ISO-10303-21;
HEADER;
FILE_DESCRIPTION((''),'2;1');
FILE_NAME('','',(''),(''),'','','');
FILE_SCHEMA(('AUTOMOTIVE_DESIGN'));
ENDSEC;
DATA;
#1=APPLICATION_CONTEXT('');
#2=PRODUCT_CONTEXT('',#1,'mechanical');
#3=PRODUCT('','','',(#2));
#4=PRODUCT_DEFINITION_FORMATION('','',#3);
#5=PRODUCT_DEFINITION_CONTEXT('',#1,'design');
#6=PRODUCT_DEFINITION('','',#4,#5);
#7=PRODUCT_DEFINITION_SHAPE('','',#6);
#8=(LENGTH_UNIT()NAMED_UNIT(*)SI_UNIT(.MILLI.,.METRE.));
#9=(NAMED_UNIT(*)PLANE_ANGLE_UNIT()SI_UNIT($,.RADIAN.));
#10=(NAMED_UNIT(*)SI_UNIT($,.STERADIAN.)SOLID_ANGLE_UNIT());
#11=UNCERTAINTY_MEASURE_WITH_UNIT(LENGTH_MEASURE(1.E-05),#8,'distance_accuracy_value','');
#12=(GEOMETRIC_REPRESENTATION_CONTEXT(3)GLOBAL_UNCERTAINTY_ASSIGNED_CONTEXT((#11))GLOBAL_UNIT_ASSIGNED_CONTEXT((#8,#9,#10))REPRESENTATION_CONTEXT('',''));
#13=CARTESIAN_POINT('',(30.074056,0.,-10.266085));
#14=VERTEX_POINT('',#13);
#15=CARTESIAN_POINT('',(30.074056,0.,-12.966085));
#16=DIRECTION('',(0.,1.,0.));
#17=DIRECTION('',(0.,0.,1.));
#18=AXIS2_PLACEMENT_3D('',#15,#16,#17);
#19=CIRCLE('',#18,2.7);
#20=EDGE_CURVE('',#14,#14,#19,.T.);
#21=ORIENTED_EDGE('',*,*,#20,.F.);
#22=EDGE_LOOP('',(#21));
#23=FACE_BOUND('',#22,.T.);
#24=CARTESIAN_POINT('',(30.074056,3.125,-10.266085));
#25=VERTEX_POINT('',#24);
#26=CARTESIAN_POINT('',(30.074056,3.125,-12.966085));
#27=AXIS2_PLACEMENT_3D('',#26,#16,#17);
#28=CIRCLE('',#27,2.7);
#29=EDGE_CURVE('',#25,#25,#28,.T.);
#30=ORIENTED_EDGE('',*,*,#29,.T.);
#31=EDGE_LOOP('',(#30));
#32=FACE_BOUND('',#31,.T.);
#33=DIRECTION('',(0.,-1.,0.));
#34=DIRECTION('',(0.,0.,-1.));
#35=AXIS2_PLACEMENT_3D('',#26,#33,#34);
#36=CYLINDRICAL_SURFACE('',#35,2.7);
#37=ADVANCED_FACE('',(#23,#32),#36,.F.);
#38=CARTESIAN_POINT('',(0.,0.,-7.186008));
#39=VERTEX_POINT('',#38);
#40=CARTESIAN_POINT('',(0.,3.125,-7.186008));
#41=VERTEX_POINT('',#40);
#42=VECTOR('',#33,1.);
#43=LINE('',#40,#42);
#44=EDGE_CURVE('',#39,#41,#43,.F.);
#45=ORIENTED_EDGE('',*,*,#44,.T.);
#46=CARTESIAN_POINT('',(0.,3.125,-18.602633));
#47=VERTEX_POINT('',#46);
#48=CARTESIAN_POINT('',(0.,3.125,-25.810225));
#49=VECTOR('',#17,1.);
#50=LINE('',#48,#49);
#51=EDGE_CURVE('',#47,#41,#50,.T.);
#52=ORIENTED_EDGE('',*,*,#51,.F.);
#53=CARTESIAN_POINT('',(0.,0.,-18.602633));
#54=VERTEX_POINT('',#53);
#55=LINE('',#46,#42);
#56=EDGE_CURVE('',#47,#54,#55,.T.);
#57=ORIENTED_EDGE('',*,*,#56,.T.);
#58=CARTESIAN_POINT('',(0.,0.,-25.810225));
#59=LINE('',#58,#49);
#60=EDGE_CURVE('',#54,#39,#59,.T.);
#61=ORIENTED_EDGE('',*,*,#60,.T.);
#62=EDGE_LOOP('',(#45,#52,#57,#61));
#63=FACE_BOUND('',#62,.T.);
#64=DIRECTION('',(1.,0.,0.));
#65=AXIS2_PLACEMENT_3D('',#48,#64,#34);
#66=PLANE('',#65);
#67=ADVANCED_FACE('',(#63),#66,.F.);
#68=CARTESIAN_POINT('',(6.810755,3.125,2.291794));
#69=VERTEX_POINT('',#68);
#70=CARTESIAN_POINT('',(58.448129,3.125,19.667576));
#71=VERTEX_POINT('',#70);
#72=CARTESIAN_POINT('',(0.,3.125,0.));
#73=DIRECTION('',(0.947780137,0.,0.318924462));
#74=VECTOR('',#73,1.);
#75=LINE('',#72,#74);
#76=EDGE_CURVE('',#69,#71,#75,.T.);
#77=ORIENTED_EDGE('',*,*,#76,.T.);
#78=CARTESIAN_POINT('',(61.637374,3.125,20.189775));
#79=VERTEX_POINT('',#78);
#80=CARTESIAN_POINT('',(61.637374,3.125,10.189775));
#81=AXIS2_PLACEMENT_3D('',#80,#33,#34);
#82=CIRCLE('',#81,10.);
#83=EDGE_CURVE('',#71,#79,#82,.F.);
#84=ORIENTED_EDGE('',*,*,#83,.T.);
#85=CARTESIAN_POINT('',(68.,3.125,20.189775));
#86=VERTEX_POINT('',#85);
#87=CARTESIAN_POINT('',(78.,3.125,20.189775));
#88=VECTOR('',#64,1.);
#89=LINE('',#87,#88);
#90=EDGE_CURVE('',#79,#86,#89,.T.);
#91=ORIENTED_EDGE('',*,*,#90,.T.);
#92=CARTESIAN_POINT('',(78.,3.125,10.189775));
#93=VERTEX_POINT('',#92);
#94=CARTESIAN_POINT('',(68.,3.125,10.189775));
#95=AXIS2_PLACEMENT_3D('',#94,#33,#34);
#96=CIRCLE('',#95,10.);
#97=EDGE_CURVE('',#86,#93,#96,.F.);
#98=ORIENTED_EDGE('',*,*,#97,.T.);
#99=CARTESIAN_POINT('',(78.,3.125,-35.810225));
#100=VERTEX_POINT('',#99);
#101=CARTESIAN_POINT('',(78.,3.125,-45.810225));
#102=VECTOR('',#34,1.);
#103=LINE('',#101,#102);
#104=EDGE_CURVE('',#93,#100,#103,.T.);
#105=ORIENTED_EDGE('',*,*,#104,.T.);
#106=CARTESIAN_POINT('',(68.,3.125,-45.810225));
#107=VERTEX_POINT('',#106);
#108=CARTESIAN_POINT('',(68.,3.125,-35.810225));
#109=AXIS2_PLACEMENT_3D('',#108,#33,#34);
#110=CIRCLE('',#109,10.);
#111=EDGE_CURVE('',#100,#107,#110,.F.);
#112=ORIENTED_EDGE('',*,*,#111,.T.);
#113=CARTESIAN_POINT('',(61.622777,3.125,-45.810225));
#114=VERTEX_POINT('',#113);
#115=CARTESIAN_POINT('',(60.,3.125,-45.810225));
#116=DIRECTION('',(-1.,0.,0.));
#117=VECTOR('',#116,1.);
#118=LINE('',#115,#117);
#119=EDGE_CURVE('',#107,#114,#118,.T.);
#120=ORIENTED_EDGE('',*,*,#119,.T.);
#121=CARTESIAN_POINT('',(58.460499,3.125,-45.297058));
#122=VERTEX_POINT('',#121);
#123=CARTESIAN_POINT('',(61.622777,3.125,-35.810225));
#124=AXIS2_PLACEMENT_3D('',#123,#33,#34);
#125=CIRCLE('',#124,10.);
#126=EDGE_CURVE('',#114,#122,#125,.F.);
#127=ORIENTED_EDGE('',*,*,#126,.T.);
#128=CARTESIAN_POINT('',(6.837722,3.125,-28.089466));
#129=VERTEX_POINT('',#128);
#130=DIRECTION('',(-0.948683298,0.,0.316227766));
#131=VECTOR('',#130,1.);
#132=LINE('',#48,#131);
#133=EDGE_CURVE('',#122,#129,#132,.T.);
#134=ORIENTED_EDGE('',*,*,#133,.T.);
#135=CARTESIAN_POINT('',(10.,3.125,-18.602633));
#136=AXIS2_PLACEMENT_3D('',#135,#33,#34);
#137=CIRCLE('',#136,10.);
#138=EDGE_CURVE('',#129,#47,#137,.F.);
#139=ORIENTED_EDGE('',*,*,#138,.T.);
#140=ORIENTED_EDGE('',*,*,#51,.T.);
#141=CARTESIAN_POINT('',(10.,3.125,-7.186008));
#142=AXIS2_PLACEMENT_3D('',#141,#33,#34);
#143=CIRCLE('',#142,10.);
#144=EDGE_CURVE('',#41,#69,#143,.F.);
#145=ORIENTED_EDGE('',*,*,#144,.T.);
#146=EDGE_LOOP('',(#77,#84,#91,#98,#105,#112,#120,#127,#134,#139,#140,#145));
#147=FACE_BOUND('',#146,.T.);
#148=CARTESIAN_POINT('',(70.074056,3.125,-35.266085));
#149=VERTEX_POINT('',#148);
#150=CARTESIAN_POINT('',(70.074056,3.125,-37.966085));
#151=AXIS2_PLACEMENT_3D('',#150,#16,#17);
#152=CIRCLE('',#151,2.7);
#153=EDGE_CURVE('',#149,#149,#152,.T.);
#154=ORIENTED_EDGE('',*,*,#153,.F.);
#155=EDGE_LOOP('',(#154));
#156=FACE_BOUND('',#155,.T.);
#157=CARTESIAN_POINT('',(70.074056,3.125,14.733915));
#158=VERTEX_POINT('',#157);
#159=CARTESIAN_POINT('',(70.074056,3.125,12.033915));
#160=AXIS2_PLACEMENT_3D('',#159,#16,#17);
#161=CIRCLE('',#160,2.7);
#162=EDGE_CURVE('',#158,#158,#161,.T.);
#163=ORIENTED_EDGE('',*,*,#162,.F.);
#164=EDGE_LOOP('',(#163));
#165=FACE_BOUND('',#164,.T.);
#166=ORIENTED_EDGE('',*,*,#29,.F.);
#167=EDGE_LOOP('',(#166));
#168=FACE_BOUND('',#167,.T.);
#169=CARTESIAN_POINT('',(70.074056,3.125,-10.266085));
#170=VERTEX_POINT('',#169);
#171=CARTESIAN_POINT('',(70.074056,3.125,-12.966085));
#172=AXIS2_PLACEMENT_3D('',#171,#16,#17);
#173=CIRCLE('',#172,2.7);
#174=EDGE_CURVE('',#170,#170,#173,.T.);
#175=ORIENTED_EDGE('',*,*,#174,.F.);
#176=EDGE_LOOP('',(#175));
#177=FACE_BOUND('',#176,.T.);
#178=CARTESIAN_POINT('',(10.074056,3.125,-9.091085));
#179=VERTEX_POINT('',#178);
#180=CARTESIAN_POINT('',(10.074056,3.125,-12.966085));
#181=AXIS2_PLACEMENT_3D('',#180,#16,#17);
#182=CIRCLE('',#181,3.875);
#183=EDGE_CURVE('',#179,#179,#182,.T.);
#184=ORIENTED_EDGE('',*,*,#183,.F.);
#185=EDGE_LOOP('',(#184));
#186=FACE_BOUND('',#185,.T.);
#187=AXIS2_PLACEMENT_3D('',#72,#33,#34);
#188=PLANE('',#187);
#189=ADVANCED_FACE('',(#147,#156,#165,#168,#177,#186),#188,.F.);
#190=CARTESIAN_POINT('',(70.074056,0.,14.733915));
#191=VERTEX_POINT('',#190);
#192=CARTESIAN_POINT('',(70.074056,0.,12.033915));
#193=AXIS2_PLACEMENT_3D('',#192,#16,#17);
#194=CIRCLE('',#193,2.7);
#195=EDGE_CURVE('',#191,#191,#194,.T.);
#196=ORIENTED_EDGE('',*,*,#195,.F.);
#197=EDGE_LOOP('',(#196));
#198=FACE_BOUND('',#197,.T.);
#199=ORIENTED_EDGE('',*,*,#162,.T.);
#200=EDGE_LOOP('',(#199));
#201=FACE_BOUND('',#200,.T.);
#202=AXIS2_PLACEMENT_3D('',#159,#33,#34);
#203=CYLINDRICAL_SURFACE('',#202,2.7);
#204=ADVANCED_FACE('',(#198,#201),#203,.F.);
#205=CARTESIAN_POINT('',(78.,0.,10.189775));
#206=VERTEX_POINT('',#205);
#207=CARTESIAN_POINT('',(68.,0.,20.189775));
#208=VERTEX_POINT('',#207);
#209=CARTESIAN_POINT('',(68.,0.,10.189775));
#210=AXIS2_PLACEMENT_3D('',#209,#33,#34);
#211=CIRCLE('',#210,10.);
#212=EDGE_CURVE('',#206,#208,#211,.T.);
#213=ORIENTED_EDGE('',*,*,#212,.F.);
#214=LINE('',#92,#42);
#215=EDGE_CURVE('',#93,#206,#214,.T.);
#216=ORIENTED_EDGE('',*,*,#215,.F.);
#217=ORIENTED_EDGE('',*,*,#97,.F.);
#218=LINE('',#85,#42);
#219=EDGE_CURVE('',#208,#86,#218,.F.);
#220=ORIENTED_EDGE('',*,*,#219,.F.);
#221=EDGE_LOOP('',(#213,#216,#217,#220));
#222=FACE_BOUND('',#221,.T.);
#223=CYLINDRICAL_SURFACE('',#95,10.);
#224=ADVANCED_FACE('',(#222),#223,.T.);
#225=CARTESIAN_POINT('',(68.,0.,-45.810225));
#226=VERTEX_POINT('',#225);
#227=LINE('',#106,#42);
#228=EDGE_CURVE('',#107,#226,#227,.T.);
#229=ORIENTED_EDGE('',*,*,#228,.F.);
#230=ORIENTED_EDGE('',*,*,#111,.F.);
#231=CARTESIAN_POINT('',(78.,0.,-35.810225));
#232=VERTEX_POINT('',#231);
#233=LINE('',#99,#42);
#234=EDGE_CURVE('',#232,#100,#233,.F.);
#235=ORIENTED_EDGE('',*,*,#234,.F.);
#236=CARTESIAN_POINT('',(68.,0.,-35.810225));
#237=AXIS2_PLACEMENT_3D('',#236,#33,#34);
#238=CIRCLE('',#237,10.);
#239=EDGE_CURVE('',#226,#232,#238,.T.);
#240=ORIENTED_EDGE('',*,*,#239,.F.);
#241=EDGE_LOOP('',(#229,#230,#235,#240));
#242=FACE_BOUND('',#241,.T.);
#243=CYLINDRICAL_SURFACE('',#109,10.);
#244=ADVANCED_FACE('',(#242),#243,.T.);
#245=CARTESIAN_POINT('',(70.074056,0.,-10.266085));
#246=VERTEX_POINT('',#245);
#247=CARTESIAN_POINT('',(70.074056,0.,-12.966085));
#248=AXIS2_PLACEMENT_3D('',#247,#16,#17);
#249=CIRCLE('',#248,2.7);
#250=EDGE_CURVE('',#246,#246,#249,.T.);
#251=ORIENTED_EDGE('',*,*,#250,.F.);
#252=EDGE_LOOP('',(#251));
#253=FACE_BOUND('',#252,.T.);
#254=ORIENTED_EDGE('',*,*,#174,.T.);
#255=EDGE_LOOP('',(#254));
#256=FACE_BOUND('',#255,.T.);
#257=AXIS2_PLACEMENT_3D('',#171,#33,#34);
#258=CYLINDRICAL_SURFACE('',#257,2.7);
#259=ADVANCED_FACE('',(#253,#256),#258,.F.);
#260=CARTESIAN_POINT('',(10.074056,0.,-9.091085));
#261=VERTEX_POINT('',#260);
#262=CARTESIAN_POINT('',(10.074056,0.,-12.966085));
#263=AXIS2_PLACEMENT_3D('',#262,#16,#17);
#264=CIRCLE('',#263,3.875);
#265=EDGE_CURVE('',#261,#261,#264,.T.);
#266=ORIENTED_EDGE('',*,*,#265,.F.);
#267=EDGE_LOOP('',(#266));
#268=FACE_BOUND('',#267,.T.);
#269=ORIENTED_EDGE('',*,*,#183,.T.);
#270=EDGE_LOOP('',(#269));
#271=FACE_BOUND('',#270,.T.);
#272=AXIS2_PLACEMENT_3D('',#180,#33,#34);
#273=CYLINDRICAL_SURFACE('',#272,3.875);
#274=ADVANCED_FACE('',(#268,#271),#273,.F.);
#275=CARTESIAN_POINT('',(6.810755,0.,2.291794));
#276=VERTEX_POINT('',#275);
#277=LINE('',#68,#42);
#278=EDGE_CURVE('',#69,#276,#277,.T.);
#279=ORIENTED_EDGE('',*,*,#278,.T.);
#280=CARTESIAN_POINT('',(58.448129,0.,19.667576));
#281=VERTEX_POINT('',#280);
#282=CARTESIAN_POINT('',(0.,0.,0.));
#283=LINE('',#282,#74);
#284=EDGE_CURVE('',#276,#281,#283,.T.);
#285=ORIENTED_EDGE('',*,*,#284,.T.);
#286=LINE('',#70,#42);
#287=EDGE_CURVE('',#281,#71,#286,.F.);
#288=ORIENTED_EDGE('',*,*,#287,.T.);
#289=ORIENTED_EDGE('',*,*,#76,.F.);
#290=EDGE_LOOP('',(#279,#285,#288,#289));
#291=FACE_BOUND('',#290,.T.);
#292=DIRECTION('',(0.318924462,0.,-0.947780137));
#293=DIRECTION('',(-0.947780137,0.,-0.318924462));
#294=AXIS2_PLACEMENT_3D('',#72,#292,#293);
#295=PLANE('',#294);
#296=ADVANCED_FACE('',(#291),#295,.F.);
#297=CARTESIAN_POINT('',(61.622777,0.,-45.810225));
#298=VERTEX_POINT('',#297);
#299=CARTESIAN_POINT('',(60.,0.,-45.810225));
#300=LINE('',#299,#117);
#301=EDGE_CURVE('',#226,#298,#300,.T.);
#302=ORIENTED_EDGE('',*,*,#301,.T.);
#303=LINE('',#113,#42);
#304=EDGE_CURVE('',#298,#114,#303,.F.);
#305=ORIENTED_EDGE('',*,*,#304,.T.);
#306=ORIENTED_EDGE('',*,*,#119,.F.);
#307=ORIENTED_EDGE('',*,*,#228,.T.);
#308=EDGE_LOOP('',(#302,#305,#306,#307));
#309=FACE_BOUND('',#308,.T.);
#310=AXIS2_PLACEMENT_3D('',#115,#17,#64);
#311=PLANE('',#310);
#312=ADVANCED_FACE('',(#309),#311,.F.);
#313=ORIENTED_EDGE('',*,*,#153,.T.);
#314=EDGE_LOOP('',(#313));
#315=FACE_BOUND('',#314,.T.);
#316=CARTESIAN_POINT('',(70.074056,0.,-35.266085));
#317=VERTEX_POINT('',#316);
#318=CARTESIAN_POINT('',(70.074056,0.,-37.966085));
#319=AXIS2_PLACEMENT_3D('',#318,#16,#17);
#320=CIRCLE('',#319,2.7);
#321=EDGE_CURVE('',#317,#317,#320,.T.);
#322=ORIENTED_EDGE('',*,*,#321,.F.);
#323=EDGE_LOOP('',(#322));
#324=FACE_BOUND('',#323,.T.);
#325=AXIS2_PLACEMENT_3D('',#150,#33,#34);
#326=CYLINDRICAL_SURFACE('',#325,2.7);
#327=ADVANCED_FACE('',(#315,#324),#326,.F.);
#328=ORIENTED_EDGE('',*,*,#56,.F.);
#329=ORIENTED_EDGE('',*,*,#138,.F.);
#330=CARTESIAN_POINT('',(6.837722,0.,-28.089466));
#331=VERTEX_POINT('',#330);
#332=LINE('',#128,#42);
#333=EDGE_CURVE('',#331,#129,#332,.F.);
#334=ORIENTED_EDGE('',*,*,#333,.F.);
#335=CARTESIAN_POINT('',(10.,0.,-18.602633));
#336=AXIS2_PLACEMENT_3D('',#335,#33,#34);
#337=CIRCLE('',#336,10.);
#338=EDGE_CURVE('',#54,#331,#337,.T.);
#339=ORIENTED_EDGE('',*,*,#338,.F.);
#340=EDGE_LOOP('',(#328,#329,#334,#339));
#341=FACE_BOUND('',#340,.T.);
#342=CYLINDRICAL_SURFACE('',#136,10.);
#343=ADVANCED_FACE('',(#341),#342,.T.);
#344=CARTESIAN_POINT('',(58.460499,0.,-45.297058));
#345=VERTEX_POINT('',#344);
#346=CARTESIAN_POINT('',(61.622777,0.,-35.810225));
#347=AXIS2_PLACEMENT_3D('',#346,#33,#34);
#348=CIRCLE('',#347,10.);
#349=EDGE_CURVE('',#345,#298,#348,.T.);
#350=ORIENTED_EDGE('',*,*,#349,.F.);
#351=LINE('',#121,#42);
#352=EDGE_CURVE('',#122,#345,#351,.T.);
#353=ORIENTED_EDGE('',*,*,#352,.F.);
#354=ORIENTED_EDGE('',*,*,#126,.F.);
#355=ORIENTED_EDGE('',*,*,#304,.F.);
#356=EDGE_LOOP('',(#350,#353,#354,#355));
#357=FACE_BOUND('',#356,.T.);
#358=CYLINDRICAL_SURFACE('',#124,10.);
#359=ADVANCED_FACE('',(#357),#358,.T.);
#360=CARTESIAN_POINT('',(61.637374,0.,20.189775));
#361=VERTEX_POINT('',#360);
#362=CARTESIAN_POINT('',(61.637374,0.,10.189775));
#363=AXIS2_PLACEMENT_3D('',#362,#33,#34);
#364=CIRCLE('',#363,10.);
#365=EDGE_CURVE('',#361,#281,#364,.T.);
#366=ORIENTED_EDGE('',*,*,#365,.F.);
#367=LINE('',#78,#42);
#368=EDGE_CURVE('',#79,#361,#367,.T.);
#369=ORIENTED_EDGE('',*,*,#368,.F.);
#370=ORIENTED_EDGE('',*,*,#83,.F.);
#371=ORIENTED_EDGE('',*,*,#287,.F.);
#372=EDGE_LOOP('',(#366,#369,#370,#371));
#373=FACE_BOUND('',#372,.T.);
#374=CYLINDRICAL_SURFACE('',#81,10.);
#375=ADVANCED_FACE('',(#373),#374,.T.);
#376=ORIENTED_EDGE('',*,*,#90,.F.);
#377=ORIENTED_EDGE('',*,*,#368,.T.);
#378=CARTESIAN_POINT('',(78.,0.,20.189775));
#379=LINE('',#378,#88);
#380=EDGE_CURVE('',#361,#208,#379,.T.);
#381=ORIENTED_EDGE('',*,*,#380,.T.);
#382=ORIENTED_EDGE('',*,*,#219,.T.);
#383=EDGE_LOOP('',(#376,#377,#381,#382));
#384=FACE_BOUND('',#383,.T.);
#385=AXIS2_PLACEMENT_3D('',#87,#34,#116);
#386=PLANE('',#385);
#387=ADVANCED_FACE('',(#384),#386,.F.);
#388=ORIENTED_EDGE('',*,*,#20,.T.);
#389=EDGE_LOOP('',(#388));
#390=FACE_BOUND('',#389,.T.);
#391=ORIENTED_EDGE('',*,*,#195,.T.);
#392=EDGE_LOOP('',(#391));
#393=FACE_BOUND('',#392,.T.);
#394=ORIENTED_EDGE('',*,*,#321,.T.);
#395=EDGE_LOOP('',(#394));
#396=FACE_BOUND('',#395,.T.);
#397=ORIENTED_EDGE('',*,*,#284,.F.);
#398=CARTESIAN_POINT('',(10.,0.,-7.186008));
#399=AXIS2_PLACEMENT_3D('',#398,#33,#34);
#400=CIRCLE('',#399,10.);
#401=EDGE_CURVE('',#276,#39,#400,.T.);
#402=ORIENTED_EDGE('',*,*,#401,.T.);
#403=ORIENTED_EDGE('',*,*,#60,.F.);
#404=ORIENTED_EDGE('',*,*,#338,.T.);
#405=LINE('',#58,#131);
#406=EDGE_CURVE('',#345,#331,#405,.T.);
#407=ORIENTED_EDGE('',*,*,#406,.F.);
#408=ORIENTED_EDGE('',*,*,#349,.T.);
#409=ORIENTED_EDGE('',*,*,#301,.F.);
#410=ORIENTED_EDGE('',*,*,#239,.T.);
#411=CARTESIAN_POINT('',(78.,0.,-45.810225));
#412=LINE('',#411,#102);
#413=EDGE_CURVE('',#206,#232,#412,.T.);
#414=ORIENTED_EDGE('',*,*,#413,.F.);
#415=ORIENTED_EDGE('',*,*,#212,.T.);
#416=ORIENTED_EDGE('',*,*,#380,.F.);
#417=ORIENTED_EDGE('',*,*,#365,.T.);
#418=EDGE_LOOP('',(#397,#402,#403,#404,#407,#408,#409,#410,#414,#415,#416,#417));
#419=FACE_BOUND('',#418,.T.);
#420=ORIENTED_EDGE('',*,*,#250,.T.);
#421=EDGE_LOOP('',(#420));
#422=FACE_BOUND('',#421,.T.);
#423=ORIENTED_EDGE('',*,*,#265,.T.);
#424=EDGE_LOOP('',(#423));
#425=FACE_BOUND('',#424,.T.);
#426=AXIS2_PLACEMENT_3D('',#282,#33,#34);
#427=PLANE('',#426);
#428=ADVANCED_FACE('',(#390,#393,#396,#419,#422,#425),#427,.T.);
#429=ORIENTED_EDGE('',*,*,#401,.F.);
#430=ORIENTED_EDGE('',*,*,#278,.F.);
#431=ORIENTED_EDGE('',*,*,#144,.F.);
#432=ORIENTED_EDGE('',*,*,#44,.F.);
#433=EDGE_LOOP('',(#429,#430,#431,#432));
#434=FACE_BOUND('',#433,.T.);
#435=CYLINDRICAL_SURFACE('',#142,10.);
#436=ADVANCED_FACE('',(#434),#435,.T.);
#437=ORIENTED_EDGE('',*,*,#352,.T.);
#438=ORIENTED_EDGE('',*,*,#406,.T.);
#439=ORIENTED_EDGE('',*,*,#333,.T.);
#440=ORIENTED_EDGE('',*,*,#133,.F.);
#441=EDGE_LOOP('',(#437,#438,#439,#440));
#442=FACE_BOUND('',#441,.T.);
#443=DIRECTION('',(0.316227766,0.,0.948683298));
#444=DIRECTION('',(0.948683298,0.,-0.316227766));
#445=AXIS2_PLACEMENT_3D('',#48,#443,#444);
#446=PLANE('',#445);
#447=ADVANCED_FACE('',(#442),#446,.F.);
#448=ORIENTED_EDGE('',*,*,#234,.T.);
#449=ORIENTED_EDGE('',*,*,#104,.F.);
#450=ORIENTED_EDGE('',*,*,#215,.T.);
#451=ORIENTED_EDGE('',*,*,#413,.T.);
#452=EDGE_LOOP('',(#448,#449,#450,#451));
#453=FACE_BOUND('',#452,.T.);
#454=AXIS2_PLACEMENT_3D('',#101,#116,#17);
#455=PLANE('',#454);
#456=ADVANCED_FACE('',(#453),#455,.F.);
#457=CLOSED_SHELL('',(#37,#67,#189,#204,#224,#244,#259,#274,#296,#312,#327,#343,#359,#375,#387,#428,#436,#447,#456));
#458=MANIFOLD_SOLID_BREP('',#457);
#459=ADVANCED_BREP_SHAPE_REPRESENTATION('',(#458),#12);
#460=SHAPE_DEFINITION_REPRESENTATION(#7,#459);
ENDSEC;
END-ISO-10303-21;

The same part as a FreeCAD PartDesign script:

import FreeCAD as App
import Part
import Sketcher
Q = App.Units.Quantity


def edges_at(feature, points):
    """Names of the edges that pass closest to the given points."""
    edges = feature.Shape.Edges
    near = lambda p: min(range(len(edges)), key=lambda i: edges[i].distToShape(Part.Vertex(*p))[0])
    return sorted({f"Edge{near(p) + 1}" for p in points})


def add_polygon(sketch, points):
    """Adds a closed chain of lines whose ends are joined by coincident constraints."""
    first, n = sketch.GeometryCount, len(points)
    for a, b in zip(points, points[1:] + points[:1]):
        sketch.addGeometry(Part.LineSegment(App.Vector(*a, 0), App.Vector(*b, 0)), False)
    for i in range(n):
        sketch.addConstraint(Sketcher.Constraint("Coincident", first + i, 2, first + (i + 1) % n, 1))

doc = App.newDocument("Part")
body = doc.addObject("PartDesign::Body", "Body")

# Sketch on XZ plane
sketch1 = body.newObject("Sketcher::SketchObject", "Sketch")
sketch1.AttachmentSupport = (doc.getObject("XZ_Plane"), [""])
sketch1.MapMode = "FlatFace"
add_polygon(sketch1, [(0, -25.8), (0, 0), (60, 20.2), (78, 20.2), (78, -45.8), (60, -45.8)])  # lines 0-5
sketch1.addGeometry(Part.Circle(App.Vector(70.1, 12, 0), App.Vector(0, 0, 1), 2.7), False)  # 6
sketch1.addGeometry(Part.Circle(App.Vector(10.1, -13, 0), App.Vector(0, 0, 1), 3.9), False)  # 7
sketch1.addGeometry(Part.Circle(App.Vector(30.1, -13, 0), App.Vector(0, 0, 1), 2.7), False)  # 8
sketch1.addGeometry(Part.Circle(App.Vector(70.1, -13, 0), App.Vector(0, 0, 1), 2.7), False)  # 9
sketch1.addGeometry(Part.Circle(App.Vector(70.1, -38, 0), App.Vector(0, 0, 1), 2.7), False)  # 10
sketch1.addConstraint(Sketcher.Constraint("Vertical", 0))
sketch1.addConstraint(Sketcher.Constraint("Horizontal", 2))
sketch1.addConstraint(Sketcher.Constraint("Vertical", 3))
sketch1.addConstraint(Sketcher.Constraint("Horizontal", 4))
sketch1.addConstraint(Sketcher.Constraint("Coincident", 0, 2, -1, 1))
sketch1.addConstraint(Sketcher.Constraint("Equal", 6, 8))
sketch1.addConstraint(Sketcher.Constraint("Equal", 8, 9))
sketch1.addConstraint(Sketcher.Constraint("Equal", 9, 10))
sketch1.addConstraint(Sketcher.Constraint("Horizontal", 7, 3, 8, 3))
sketch1.addConstraint(Sketcher.Constraint("Horizontal", 8, 3, 9, 3))
sketch1.addConstraint(Sketcher.Constraint("Vertical", 6, 3, 9, 3))
sketch1.addConstraint(Sketcher.Constraint("Vertical", 9, 3, 10, 3))
sketch1.addConstraint(Sketcher.Constraint("Vertical", 1, 2, 4, 2))
sketch1.addConstraint(Sketcher.Constraint("Diameter", 6, Q("5.4 mm")))
sketch1.addConstraint(Sketcher.Constraint("Diameter", 7, Q("7.75 mm")))
sketch1.addConstraint(Sketcher.Constraint("DistanceX", 2, 1, 2, 2, Q("18 mm")))
sketch1.addConstraint(Sketcher.Constraint("DistanceY", 3, 2, 3, 1, Q("66 mm")))
sketch1.addConstraint(Sketcher.Constraint("DistanceX", -1, 1, 1, 2, Q("60 mm")))
sketch1.addConstraint(Sketcher.Constraint("DistanceX", 7, 3, 6, 3, Q("60 mm")))
sketch1.addConstraint(Sketcher.Constraint("DistanceY", 7, 3, 6, 3, Q("25 mm")))
sketch1.addConstraint(Sketcher.Constraint("DistanceX", 7, 3, 8, 3, Q("20 mm")))
sketch1.addConstraint(Sketcher.Constraint("DistanceY", 10, 3, 9, 3, Q("25 mm")))
sketch1.addConstraint(Sketcher.Constraint("DistanceY", 4, 2, 5, 2, Q("20 mm")))
sketch1.addConstraint(Sketcher.Constraint("Distance", 1, Q("63.305821 mm")))
sketch1.addConstraint(Sketcher.Constraint("DistanceY", 6, 3, 1, 2, Q("8.15586 mm")))
sketch1.addConstraint(Sketcher.Constraint("DistanceX", -1, 1, 6, 3, Q("70.074056 mm")))
pad1 = body.newObject("PartDesign::Pad", "Pad")
pad1.Profile = sketch1
pad1.Length = 3.125
pad1.Reversed = True
doc.recompute()

fillet = body.newObject("PartDesign::Fillet", "Fillet")
fillet.Base = (pad1, edges_at(pad1, [
    (60, 1.562, -45.81),
    (78, 1.562, -45.81),
    (78, 1.562, 20.19),
    (60, 1.562, 20.19),
    (0, 1.562, 0),
    (0, 1.562, -25.81),
]))
fillet.Radius = 10

doc.recompute()
